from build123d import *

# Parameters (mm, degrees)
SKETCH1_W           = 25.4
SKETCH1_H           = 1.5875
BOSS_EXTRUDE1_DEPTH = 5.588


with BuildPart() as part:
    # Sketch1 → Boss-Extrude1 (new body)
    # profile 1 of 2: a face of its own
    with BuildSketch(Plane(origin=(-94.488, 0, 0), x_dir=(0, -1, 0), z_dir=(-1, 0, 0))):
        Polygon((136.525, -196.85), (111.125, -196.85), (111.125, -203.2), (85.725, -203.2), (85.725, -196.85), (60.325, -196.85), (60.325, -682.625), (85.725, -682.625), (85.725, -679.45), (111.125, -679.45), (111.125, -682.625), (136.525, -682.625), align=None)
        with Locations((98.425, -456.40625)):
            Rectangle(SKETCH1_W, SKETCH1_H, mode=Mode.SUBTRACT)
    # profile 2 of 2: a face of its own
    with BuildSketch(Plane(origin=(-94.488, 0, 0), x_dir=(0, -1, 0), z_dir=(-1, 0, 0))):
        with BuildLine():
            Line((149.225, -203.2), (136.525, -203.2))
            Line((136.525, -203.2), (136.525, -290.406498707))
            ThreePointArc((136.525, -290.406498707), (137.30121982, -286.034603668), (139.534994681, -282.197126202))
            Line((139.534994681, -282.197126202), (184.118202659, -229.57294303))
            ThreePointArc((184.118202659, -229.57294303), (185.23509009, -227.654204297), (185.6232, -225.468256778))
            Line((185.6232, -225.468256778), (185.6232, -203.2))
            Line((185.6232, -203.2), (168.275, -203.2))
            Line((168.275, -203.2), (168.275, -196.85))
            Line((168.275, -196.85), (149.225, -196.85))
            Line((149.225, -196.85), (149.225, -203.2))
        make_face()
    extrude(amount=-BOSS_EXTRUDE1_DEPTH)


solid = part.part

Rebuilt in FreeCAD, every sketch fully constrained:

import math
import FreeCAD as App
import Part
import Sketcher
Q = App.Units.Quantity


def add_polygon(sketch, points):
    """Adds a closed chain of lines whose ends are joined by coincident constraints."""
    first, n = sketch.GeometryCount, len(points)
    for a, b in zip(points, points[1:] + points[:1]):
        sketch.addGeometry(Part.LineSegment(App.Vector(*a, 0), App.Vector(*b, 0)), False)
    for i in range(n):
        sketch.addConstraint(Sketcher.Constraint("Coincident", first + i, 2, first + (i + 1) % n, 1))

doc = App.newDocument("Part")
params = doc.addObject("Spreadsheet::Sheet", "Params")
for row, (alias, value) in enumerate([
    ("sketch1_radius", "0.5 in"),
    ("sketch1_width", "1 in"),
    ("sketch1_radius2", "0.25 in"),
    ("sketch1_width2", "0.75 in"),
    ("sketch1_height", "0.25 in"),
    ("pad1_length", "0.22 in"),
], start=1):
    params.set(f"A{row}", alias)
    params.set(f"B{row}", "=" + value)
    params.setAlias(f"B{row}", alias)

body = doc.addObject("PartDesign::Body", "Body")

sketch1 = body.newObject("Sketcher::SketchObject", "Sketch")
sketch1.AttachmentSupport = (doc.getObject("YZ_Plane"), [""])
sketch1.MapMode = "FlatFace"
sketch1.AttachmentOffset = App.Placement(App.Vector(0, 0, -3.72 * 25.4), App.Rotation())
sketch1.addGeometry(Part.LineSegment(App.Vector(-136.5, -196.8, 0), App.Vector(-111.1, -196.8, 0)), False)
sketch1.addGeometry(Part.LineSegment(App.Vector(-111.1, -196.8, 0), App.Vector(-111.1, -203.2, 0)), False)
sketch1.addGeometry(Part.LineSegment(App.Vector(-111.1, -203.2, 0), App.Vector(-85.7, -203.2, 0)), False)
sketch1.addGeometry(Part.LineSegment(App.Vector(-85.7, -203.2, 0), App.Vector(-85.7, -196.8, 0)), False)
sketch1.addGeometry(Part.LineSegment(App.Vector(-85.7, -196.8, 0), App.Vector(-60.3, -196.8, 0)), False)
sketch1.addGeometry(Part.LineSegment(App.Vector(-60.3, -196.8, 0), App.Vector(-60.3, -682.6, 0)), False)
sketch1.addGeometry(Part.LineSegment(App.Vector(-60.3, -682.6, 0), App.Vector(-85.7, -682.6, 0)), False)
sketch1.addGeometry(Part.LineSegment(App.Vector(-85.7, -682.6, 0), App.Vector(-85.7, -679.5, 0)), False)
sketch1.addGeometry(Part.LineSegment(App.Vector(-85.7, -679.5, 0), App.Vector(-111.1, -679.5, 0)), False)
sketch1.addGeometry(Part.LineSegment(App.Vector(-111.1, -679.5, 0), App.Vector(-111.1, -682.6, 0)), False)
sketch1.addGeometry(Part.LineSegment(App.Vector(-111.1, -682.6, 0), App.Vector(-136.5, -682.6, 0)), False)
sketch1.addGeometry(Part.LineSegment(App.Vector(-136.5, -682.6, 0), App.Vector(-136.5, -290.4, 0)), False)
sketch1.addGeometry(Part.ArcOfCircle(Part.Circle(App.Vector(-149.2, -290.4, 0), App.Vector(0, 0, 1), 12.7), math.radians(0), math.radians(40)), False)
sketch1.addGeometry(Part.LineSegment(App.Vector(-139.5, -282.2, 0), App.Vector(-184.1, -229.6, 0)), False)
sketch1.addGeometry(Part.ArcOfCircle(Part.Circle(App.Vector(-179.3, -225.5, 0), App.Vector(0, 0, 1), 6.3), math.radians(180), math.radians(220)), False)
sketch1.addGeometry(Part.LineSegment(App.Vector(-185.6, -225.5, 0), App.Vector(-185.6, -203.2, 0)), False)
sketch1.addGeometry(Part.LineSegment(App.Vector(-185.6, -203.2, 0), App.Vector(-168.3, -203.2, 0)), False)
sketch1.addGeometry(Part.LineSegment(App.Vector(-168.3, -203.2, 0), App.Vector(-168.3, -196.8, 0)), False)
sketch1.addGeometry(Part.LineSegment(App.Vector(-168.3, -196.8, 0), App.Vector(-149.2, -196.8, 0)), False)
sketch1.addGeometry(Part.LineSegment(App.Vector(-149.2, -196.8, 0), App.Vector(-149.2, -203.2, 0)), False)
sketch1.addGeometry(Part.LineSegment(App.Vector(-149.2, -203.2, 0), App.Vector(-136.5, -203.2, 0)), False)
sketch1.addGeometry(Part.LineSegment(App.Vector(-136.5, -203.2, 0), App.Vector(-136.5, -196.8, 0)), False)
add_polygon(sketch1, [(-111.1, -457.2), (-85.7, -457.2), (-85.7, -455.6), (-111.1, -455.6)])
sketch1.addConstraint([
    Sketcher.Constraint("Coincident", 0, 2, 1, 1),
    Sketcher.Constraint("Coincident", 1, 2, 2, 1),
    Sketcher.Constraint("Coincident", 2, 2, 3, 1),
    Sketcher.Constraint("Coincident", 3, 2, 4, 1),
    Sketcher.Constraint("Coincident", 4, 2, 5, 1),
    Sketcher.Constraint("Coincident", 5, 2, 6, 1),
    Sketcher.Constraint("Coincident", 6, 2, 7, 1),
    Sketcher.Constraint("Coincident", 7, 2, 8, 1),
    Sketcher.Constraint("Coincident", 8, 2, 9, 1),
    Sketcher.Constraint("Coincident", 9, 2, 10, 1),
    Sketcher.Constraint("Coincident", 10, 2, 11, 1),
    Sketcher.Constraint("Tangent", 11, 2, 12, 1),
    Sketcher.Constraint("Tangent", 12, 2, 13, 1),
    Sketcher.Constraint("Tangent", 13, 2, 14, 2),
    Sketcher.Constraint("Tangent", 14, 1, 15, 1),
    Sketcher.Constraint("Coincident", 15, 2, 16, 1),
    Sketcher.Constraint("Coincident", 16, 2, 17, 1),
    Sketcher.Constraint("Coincident", 17, 2, 18, 1),
    Sketcher.Constraint("Coincident", 18, 2, 19, 1),
    Sketcher.Constraint("Coincident", 19, 2, 20, 1),
    Sketcher.Constraint("Coincident", 20, 2, 21, 1),
    Sketcher.Constraint("Coincident", 21, 2, 0, 1),
    Sketcher.Constraint("Horizontal", 0),
    Sketcher.Constraint("Vertical", 1),
    Sketcher.Constraint("Horizontal", 2),
    Sketcher.Constraint("Vertical", 3),
    Sketcher.Constraint("Horizontal", 4),
    Sketcher.Constraint("Vertical", 5),
    Sketcher.Constraint("Horizontal", 6),
    Sketcher.Constraint("Vertical", 7),
    Sketcher.Constraint("Horizontal", 8),
    Sketcher.Constraint("Vertical", 9),
    Sketcher.Constraint("Horizontal", 10),
    Sketcher.Constraint("Vertical", 11),
    Sketcher.Constraint("Vertical", 15),
    Sketcher.Constraint("Horizontal", 16),
    Sketcher.Constraint("Vertical", 17),
    Sketcher.Constraint("Horizontal", 18),
    Sketcher.Constraint("Vertical", 19),
    Sketcher.Constraint("Horizontal", 20),
    Sketcher.Constraint("Vertical", 21),
    Sketcher.Constraint("Horizontal", 22),
    Sketcher.Constraint("Vertical", 23),
    Sketcher.Constraint("Horizontal", 24),
    Sketcher.Constraint("Vertical", 25),
    Sketcher.Constraint("Horizontal", 0, 2, 3, 2),
    Sketcher.Constraint("Horizontal", 6, 2, 9, 2),
    Sketcher.Constraint("Horizontal", 2, 2, 15, 2),
    Sketcher.Constraint("Horizontal", 4, 2, 17, 2),
    Sketcher.Constraint("Horizontal", 16, 2, 19, 2),
    Sketcher.Constraint("Vertical", 3, 2, 6, 2),
    Sketcher.Constraint("Vertical", 1, 2, 8, 2),
    Sketcher.Constraint("Vertical", 12, 3, 18, 2),
    Sketcher.Constraint("Vertical", 11, 2, 20, 2),
    Sketcher.Constraint("Vertical", 7, 2, 22, 2),
    Sketcher.Constraint("Vertical", 9, 2, 24, 2),
    Sketcher.Constraint("Equal", 0, 2),
    Sketcher.Constraint("Equal", 2, 4),
    Sketcher.Constraint("Radius", 12, Q("0.5 in")),
    Sketcher.Constraint("DistanceX", 0, 1, 0, 2, Q("1 in")),
    Sketcher.Constraint("Radius", 14, Q("0.25 in")),
    Sketcher.Constraint("DistanceY", 1, 2, -1, 1, Q("8 in")),
    Sketcher.Constraint("DistanceY", 22, 2, -1, 1, Q("18 in")),
    Sketcher.Constraint("DistanceX", 18, 1, 18, 2, Q("0.75 in")),
    Sketcher.Constraint("DistanceY", 1, 2, 1, 1, Q("0.25 in")),
    Sketcher.Constraint("DistanceX", 16, 1, 16, 2, Q("0.683 in")),
    Sketcher.Constraint("DistanceY", 5, 2, 5, 1, Q("19.125 in")),
    Sketcher.Constraint("DistanceY", 7, 1, 7, 2, Q("0.125 in")),
    Sketcher.Constraint("DistanceY", 23, 1, 23, 2, Q("0.0625 in")),
    Sketcher.Constraint("DistanceX", 12, 3, -1, 1, Q("5.875 in")),
    Sketcher.Constraint("DistanceY", 11, 1, 11, 2, 392.218501),
    Sketcher.Constraint("Distance", 13, 68.97077),
])
sketch1.setExpression("Constraints[62]", "Params.sketch1_radius")
sketch1.setExpression("Constraints[63]", "Params.sketch1_width")
sketch1.setExpression("Constraints[64]", "Params.sketch1_radius2")
sketch1.setExpression("Constraints[67]", "Params.sketch1_width2")
sketch1.setExpression("Constraints[68]", "Params.sketch1_height")
pad1 = body.newObject("PartDesign::Pad", "Pad")
pad1.Profile = sketch1
pad1.setExpression("Length", "Params.pad1_length")

doc.recompute()
